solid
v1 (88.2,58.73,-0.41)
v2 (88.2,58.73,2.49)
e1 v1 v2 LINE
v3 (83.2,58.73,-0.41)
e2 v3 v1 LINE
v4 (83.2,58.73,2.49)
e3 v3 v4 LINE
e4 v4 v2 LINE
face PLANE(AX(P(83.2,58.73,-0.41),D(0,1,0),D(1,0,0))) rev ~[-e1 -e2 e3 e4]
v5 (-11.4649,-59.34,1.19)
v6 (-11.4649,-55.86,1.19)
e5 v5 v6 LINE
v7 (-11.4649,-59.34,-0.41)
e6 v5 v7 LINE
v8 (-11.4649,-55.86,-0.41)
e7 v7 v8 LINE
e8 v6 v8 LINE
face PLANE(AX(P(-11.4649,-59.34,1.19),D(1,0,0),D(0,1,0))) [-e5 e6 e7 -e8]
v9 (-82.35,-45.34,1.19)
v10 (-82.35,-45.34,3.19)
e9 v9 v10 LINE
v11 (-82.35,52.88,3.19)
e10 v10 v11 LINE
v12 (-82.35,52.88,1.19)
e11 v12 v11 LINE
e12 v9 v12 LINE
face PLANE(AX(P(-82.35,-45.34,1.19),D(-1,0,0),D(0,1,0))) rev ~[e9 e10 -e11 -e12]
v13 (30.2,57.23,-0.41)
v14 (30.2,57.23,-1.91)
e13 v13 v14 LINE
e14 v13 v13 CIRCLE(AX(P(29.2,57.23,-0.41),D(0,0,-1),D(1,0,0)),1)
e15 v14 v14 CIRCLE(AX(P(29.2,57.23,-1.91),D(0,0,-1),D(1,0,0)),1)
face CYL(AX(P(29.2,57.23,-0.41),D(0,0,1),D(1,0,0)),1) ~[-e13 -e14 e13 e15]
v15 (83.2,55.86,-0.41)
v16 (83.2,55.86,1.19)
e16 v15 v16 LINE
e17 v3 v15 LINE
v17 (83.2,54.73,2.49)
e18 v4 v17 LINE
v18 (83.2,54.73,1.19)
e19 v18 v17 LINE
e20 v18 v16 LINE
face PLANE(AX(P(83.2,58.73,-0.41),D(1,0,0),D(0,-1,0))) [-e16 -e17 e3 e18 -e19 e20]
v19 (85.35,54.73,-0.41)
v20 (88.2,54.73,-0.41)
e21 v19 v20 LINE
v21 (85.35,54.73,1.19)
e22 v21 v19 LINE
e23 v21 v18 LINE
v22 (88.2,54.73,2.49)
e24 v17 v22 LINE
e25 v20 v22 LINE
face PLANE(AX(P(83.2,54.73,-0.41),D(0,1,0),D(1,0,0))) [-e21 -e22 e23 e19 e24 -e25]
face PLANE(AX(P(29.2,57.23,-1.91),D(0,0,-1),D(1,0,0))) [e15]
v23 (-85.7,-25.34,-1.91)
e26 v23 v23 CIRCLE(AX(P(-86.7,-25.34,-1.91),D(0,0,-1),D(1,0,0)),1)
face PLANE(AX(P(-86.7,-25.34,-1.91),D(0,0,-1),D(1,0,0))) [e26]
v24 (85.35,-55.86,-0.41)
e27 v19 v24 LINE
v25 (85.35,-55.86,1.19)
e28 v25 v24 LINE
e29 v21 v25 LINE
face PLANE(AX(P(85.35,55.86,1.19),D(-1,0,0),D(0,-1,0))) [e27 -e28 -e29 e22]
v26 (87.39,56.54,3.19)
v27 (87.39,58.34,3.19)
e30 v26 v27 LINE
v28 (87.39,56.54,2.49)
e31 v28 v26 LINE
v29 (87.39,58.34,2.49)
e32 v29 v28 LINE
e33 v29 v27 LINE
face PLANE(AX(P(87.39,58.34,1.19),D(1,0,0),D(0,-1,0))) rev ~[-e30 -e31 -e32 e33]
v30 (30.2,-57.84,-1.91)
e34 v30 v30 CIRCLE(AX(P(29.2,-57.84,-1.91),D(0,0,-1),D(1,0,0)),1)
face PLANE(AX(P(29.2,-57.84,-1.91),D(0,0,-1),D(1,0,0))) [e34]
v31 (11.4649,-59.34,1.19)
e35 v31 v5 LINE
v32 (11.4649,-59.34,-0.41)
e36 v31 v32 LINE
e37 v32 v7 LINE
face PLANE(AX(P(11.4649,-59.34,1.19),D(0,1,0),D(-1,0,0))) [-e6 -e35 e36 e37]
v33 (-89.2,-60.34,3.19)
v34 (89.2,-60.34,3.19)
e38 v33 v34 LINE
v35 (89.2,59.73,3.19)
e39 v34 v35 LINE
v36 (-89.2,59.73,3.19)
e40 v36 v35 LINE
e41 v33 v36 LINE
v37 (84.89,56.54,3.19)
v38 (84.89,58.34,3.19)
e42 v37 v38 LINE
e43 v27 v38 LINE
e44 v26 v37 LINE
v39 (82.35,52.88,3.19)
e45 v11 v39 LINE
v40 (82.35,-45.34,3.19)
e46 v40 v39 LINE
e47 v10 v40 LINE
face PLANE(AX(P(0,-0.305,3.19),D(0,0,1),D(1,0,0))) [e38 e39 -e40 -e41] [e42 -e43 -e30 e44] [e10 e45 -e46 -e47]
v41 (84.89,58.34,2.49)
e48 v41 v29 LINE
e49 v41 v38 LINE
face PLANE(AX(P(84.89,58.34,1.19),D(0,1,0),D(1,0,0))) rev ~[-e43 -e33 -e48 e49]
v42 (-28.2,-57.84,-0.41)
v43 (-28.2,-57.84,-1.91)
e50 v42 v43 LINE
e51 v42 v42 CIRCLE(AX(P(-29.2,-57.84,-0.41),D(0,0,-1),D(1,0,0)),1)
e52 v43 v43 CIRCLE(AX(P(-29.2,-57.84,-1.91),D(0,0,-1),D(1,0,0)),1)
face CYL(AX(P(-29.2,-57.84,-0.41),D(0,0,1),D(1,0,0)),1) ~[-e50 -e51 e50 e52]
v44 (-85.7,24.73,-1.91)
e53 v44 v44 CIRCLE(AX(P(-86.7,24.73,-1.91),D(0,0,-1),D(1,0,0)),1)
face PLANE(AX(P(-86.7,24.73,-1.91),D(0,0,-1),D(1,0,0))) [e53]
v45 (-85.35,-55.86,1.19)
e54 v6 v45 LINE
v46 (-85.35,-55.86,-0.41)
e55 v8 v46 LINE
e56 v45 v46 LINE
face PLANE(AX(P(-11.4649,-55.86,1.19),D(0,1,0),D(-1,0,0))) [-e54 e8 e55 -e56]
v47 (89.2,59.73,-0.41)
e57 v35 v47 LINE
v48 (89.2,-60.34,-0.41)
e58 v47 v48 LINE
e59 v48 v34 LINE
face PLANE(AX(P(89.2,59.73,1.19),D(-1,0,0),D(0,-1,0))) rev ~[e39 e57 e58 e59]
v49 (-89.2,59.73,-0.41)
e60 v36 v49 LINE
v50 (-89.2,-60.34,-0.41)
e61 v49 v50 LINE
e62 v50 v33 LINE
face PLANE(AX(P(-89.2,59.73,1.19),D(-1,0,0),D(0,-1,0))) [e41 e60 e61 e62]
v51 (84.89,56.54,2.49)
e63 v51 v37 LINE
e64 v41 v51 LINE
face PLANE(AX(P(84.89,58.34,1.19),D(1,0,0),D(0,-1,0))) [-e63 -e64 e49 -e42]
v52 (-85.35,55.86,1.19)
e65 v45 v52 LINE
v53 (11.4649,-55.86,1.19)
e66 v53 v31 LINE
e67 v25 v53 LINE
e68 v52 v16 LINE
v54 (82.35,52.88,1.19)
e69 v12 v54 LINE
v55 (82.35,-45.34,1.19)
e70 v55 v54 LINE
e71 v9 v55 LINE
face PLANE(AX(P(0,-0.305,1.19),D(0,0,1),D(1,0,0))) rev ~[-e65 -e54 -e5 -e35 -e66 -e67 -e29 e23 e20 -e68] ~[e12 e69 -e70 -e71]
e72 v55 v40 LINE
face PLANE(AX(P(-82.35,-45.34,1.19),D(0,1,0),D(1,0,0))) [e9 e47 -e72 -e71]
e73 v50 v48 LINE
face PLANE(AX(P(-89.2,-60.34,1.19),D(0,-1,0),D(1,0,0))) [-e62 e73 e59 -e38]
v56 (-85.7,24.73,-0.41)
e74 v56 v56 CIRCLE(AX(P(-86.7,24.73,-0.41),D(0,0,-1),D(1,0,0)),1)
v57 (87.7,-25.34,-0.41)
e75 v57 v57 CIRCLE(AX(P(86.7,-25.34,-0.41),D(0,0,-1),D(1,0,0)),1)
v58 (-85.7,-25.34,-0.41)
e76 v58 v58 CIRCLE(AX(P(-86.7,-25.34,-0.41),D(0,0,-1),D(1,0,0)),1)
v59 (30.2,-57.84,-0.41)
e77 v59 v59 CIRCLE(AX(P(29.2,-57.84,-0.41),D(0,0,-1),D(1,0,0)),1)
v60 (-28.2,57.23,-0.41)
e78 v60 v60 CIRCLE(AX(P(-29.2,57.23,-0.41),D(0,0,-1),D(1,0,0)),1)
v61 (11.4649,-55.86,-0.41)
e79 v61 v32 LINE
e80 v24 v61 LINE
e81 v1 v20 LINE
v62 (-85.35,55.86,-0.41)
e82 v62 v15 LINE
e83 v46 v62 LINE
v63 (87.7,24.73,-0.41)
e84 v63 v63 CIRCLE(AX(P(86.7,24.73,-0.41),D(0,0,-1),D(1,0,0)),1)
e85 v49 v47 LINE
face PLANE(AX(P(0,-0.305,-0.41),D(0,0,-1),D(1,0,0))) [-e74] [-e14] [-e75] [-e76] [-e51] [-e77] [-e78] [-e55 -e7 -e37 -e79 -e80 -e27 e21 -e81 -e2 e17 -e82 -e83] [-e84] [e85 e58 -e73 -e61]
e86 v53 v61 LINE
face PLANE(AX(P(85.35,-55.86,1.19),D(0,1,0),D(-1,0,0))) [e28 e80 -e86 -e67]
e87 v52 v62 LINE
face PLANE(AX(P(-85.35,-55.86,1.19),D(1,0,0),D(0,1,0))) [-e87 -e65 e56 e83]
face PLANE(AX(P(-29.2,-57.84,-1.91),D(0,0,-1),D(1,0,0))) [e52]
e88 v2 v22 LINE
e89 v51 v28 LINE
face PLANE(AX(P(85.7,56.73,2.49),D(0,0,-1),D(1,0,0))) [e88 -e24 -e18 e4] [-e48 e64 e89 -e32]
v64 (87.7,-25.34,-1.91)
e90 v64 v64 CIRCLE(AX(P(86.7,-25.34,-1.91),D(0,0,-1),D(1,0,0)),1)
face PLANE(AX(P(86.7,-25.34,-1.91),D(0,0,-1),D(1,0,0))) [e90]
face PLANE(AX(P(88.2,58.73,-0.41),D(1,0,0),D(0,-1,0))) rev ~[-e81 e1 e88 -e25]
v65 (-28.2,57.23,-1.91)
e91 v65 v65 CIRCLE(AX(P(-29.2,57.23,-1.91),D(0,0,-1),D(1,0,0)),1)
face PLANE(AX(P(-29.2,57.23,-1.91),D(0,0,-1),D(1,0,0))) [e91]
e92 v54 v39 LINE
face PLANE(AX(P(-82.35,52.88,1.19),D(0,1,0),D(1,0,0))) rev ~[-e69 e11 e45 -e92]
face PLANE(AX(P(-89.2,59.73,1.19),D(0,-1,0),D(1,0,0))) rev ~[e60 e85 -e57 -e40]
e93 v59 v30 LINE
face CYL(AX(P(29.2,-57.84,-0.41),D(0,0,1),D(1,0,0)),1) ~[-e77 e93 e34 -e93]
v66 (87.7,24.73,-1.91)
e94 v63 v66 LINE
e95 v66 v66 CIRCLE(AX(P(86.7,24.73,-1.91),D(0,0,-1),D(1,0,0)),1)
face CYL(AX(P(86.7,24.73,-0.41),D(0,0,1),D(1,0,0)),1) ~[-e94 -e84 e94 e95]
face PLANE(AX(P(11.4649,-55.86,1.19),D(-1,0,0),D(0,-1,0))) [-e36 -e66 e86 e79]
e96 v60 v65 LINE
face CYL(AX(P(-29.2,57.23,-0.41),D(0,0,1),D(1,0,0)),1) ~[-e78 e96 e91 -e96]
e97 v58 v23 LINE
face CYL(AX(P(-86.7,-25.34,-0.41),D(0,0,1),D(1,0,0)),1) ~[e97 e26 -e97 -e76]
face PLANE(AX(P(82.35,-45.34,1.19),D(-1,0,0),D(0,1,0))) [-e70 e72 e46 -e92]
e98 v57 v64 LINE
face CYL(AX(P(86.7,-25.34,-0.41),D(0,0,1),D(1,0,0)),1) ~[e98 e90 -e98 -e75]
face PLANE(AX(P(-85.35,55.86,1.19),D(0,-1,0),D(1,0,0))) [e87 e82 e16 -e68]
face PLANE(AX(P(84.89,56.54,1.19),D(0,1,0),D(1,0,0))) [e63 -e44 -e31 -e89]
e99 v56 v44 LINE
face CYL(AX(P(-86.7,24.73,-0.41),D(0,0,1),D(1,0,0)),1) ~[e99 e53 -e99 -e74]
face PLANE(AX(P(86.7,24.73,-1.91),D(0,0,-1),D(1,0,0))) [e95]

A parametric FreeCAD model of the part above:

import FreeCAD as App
import Part
import Sketcher


def add_polygon(sketch, points):
    """Adds a closed chain of lines whose ends are joined by coincident constraints."""
    first, n = sketch.GeometryCount, len(points)
    for a, b in zip(points, points[1:] + points[:1]):
        sketch.addGeometry(Part.LineSegment(App.Vector(*a, 0), App.Vector(*b, 0)), False)
    for i in range(n):
        sketch.addConstraint(Sketcher.Constraint("Coincident", first + i, 2, first + (i + 1) % n, 1))

doc = App.newDocument("Part")
body = doc.addObject("PartDesign::Body", "Body")

# Sketch on XY plane
sketch1 = doc.addObject("Sketcher::SketchObject", "Sketch")
body.addObject(sketch1)
sketch1.AttachmentSupport = (doc.XY_Plane, [""])
sketch1.MapMode = "FlatFace"
sketch1.AttachmentOffset = App.Placement(App.Vector(0, 0, 1.19), App.Rotation())
add_polygon(sketch1, [(-89.2, 59.73), (-89.2, -60.34), (89.2, -60.34), (89.2, 59.73)])  # lines 0-3
add_polygon(sketch1, [(82.35, -45.34), (-82.35, -45.34), (-82.35, 52.88), (82.35, 52.88)])  # lines 4-7
sketch1.addConstraint([
    Sketcher.Constraint("Vertical", 0),
    Sketcher.Constraint("Horizontal", 1),
    Sketcher.Constraint("Vertical", 2),
    Sketcher.Constraint("Horizontal", 3),
    Sketcher.Constraint("Horizontal", 4),
    Sketcher.Constraint("Vertical", 5),
    Sketcher.Constraint("Horizontal", 6),
    Sketcher.Constraint("Vertical", 7),
    Sketcher.Constraint("DistanceX", 1, 1, 1, 2, 178.4),
    Sketcher.Constraint("DistanceX", 4, 2, 4, 1, 164.7),
    Sketcher.Constraint("DistanceY", 0, 2, 4, 2, 15.0),
    Sketcher.Constraint("DistanceY", 0, 2, 0, 1, 120.07),
    Sketcher.Constraint("DistanceY", 5, 1, 5, 2, 98.22),
    Sketcher.Constraint("DistanceX", 0, 2, -1, 1, 89.2),
    Sketcher.Constraint("DistanceY", 0, 2, -1, 1, 60.34),
    Sketcher.Constraint("DistanceX", 4, 2, -1, 1, 82.35),
])
pad1 = doc.addObject("PartDesign::Pad", "Pad")
body.addObject(pad1)
pad1.Profile = sketch1
pad1.Length = 2

# Sketch on XY plane
sketch2 = doc.addObject("Sketcher::SketchObject", "Sketch001")
body.addObject(sketch2)
sketch2.AttachmentSupport = (doc.XY_Plane, [""])
sketch2.MapMode = "FlatFace"
sketch2.AttachmentOffset = App.Placement(App.Vector(0, 0, 1.19), App.Rotation())
add_polygon(sketch2, [(-89.2, -60.34), (-89.2, 59.73), (89.2, 59.73), (89.2, -60.34)])  # lines 0-3
add_polygon(sketch2, [(-85.35, 55.86), (-85.35, -55.86), (-11.4649, -55.86), (-11.4649, -59.34), (11.4649, -59.34), (11.4649, -55.86), (85.35, -55.86), (85.35, 55.86)])  # lines 4-11
sketch2.addConstraint([
    Sketcher.Constraint("Vertical", 0),
    Sketcher.Constraint("Horizontal", 1),
    Sketcher.Constraint("Vertical", 2),
    Sketcher.Constraint("Horizontal", 3),
    Sketcher.Constraint("Vertical", 4),
    Sketcher.Constraint("Horizontal", 5),
    Sketcher.Constraint("Vertical", 6),
    Sketcher.Constraint("Horizontal", 7),
    Sketcher.Constraint("Vertical", 8),
    Sketcher.Constraint("Horizontal", 9),
    Sketcher.Constraint("Vertical", 10),
    Sketcher.Constraint("Horizontal", 11),
    Sketcher.Constraint("Symmetric", 4, 2, 10, 2, -1, 1),
    Sketcher.Constraint("Symmetric", 5, 2, 8, 2, -2),
    Sketcher.Constraint("DistanceX", 1, 1, 1, 2, 178.4),
    Sketcher.Constraint("DistanceX", 11, 2, 11, 1, 170.7),
    Sketcher.Constraint("DistanceY", 3, 2, 6, 2, 1.0),
    Sketcher.Constraint("DistanceY", 0, 1, 0, 2, 120.07),
    Sketcher.Constraint("DistanceY", 4, 2, 4, 1, 111.72),
    Sketcher.Constraint("DistanceY", 6, 2, 6, 1, 3.48),
    Sketcher.Constraint("DistanceX", 0, 2, -1, 1, 89.2),
    Sketcher.Constraint("DistanceX", 5, 1, 5, 2, 73.8851),
])
pad2 = doc.addObject("PartDesign::Pad", "Pad001")
body.addObject(pad2)
pad2.Profile = sketch2
pad2.Length = 1.6
pad2.Reversed = True

# Sketch on XY plane
sketch3 = doc.addObject("Sketcher::SketchObject", "Sketch002")
body.addObject(sketch3)
sketch3.AttachmentSupport = (doc.XY_Plane, [""])
sketch3.MapMode = "FlatFace"
sketch3.AttachmentOffset = App.Placement(App.Vector(0, 0, -0.41), App.Rotation())
add_polygon(sketch3, [(83.2, 54.73), (83.2, 58.73), (88.2, 58.73), (88.2, 54.73)])  # lines 0-3
sketch3.addConstraint([
    Sketcher.Constraint("Vertical", 0),
    Sketcher.Constraint("Horizontal", 1),
    Sketcher.Constraint("Vertical", 2),
    Sketcher.Constraint("Horizontal", 3),
    Sketcher.Constraint("DistanceX", 1, 1, 1, 2, 5.0),
    Sketcher.Constraint("DistanceY", 0, 1, 0, 2, 4.0),
    Sketcher.Constraint("DistanceX", -1, 1, 0, 2, 83.2),
    Sketcher.Constraint("DistanceY", -1, 1, 0, 2, 58.73),
])
pocket1 = doc.addObject("PartDesign::Pocket", "Pocket")
body.addObject(pocket1)
pocket1.Profile = sketch3
pocket1.Length = 2.9
pocket1.Reversed = True

# Sketch on XY plane
sketch4 = doc.addObject("Sketcher::SketchObject", "Sketch003")
body.addObject(sketch4)
sketch4.AttachmentSupport = (doc.XY_Plane, [""])
sketch4.MapMode = "FlatFace"
sketch4.AttachmentOffset = App.Placement(App.Vector(0, 0, 1.19), App.Rotation())
add_polygon(sketch4, [(84.89, 56.54), (84.89, 58.34), (87.39, 58.34), (87.39, 56.54)])  # lines 0-3
sketch4.addConstraint([
    Sketcher.Constraint("Vertical", 0),
    Sketcher.Constraint("Horizontal", 1),
    Sketcher.Constraint("Vertical", 2),
    Sketcher.Constraint("Horizontal", 3),
    Sketcher.Constraint("DistanceX", 1, 1, 1, 2, 2.5),
    Sketcher.Constraint("DistanceY", 0, 1, 0, 2, 1.8),
    Sketcher.Constraint("DistanceX", -1, 1, 0, 2, 84.89),
    Sketcher.Constraint("DistanceY", -1, 1, 0, 2, 58.34),
])
pocket2 = doc.addObject("PartDesign::Pocket", "Pocket001")
body.addObject(pocket2)
pocket2.Profile = sketch4
pocket2.Length = 5
pocket2.Reversed = True

# Sketch on XY plane
sketch5 = doc.addObject("Sketcher::SketchObject", "Sketch004")
body.addObject(sketch5)
sketch5.AttachmentSupport = (doc.XY_Plane, [""])
sketch5.MapMode = "FlatFace"
sketch5.AttachmentOffset = App.Placement(App.Vector(0, 0, -0.41), App.Rotation())
sketch5.addGeometry([
    Part.Circle(App.Vector(-29.2, -57.84, 0), App.Vector(0, 0, 1), 1),  # 0
    Part.Circle(App.Vector(29.2, -57.84, 0), App.Vector(0, 0, 1), 1),  # 1
    Part.Circle(App.Vector(-29.2, 57.23, 0), App.Vector(0, 0, 1), 1),  # 2
    Part.Circle(App.Vector(29.2, 57.23, 0), App.Vector(0, 0, 1), 1),  # 3
    Part.Circle(App.Vector(-86.7, 24.73, 0), App.Vector(0, 0, 1), 1),  # 4
    Part.Circle(App.Vector(-86.7, -25.34, 0), App.Vector(0, 0, 1), 1),  # 5
    Part.Circle(App.Vector(86.7, -25.34, 0), App.Vector(0, 0, 1), 1),  # 6
    Part.Circle(App.Vector(86.7, 24.73, 0), App.Vector(0, 0, 1), 1),  # 7
], False)
sketch5.addConstraint([
    Sketcher.Constraint("Equal", 0, 1),
    Sketcher.Constraint("Equal", 1, 2),
    Sketcher.Constraint("Equal", 2, 3),
    Sketcher.Constraint("Equal", 3, 4),
    Sketcher.Constraint("Equal", 4, 5),
    Sketcher.Constraint("Equal", 5, 6),
    Sketcher.Constraint("Equal", 6, 7),
    Sketcher.Constraint("Symmetric", 0, 3, 1, 3, -2),
    Sketcher.Constraint("Symmetric", 2, 3, 3, 3, -2),
    Sketcher.Constraint("Symmetric", 5, 3, 6, 3, -2),
    Sketcher.Constraint("Symmetric", 4, 3, 7, 3, -2),
    Sketcher.Constraint("Vertical", 0, 3, 2, 3),
    Sketcher.Constraint("Vertical", 4, 3, 5, 3),
    Sketcher.Constraint("Diameter", 0, 2.0),
    Sketcher.Constraint("DistanceX", 0, 3, -1, 1, 29.2),
    Sketcher.Constraint("DistanceX", 4, 3, -1, 1, 86.7),
    Sketcher.Constraint("DistanceY", 4, 3, 2, 3, 32.5),
    Sketcher.Constraint("DistanceY", 0, 3, 5, 3, 32.5),
    Sketcher.Constraint("DistanceY", 0, 3, -1, 1, 57.84),
    Sketcher.Constraint("DistanceY", -1, 1, 2, 3, 57.23),
])
pad3 = doc.addObject("PartDesign::Pad", "Pad002")
body.addObject(pad3)
pad3.Profile = sketch5
pad3.Length = 1.5
pad3.Reversed = True

doc.recompute()
